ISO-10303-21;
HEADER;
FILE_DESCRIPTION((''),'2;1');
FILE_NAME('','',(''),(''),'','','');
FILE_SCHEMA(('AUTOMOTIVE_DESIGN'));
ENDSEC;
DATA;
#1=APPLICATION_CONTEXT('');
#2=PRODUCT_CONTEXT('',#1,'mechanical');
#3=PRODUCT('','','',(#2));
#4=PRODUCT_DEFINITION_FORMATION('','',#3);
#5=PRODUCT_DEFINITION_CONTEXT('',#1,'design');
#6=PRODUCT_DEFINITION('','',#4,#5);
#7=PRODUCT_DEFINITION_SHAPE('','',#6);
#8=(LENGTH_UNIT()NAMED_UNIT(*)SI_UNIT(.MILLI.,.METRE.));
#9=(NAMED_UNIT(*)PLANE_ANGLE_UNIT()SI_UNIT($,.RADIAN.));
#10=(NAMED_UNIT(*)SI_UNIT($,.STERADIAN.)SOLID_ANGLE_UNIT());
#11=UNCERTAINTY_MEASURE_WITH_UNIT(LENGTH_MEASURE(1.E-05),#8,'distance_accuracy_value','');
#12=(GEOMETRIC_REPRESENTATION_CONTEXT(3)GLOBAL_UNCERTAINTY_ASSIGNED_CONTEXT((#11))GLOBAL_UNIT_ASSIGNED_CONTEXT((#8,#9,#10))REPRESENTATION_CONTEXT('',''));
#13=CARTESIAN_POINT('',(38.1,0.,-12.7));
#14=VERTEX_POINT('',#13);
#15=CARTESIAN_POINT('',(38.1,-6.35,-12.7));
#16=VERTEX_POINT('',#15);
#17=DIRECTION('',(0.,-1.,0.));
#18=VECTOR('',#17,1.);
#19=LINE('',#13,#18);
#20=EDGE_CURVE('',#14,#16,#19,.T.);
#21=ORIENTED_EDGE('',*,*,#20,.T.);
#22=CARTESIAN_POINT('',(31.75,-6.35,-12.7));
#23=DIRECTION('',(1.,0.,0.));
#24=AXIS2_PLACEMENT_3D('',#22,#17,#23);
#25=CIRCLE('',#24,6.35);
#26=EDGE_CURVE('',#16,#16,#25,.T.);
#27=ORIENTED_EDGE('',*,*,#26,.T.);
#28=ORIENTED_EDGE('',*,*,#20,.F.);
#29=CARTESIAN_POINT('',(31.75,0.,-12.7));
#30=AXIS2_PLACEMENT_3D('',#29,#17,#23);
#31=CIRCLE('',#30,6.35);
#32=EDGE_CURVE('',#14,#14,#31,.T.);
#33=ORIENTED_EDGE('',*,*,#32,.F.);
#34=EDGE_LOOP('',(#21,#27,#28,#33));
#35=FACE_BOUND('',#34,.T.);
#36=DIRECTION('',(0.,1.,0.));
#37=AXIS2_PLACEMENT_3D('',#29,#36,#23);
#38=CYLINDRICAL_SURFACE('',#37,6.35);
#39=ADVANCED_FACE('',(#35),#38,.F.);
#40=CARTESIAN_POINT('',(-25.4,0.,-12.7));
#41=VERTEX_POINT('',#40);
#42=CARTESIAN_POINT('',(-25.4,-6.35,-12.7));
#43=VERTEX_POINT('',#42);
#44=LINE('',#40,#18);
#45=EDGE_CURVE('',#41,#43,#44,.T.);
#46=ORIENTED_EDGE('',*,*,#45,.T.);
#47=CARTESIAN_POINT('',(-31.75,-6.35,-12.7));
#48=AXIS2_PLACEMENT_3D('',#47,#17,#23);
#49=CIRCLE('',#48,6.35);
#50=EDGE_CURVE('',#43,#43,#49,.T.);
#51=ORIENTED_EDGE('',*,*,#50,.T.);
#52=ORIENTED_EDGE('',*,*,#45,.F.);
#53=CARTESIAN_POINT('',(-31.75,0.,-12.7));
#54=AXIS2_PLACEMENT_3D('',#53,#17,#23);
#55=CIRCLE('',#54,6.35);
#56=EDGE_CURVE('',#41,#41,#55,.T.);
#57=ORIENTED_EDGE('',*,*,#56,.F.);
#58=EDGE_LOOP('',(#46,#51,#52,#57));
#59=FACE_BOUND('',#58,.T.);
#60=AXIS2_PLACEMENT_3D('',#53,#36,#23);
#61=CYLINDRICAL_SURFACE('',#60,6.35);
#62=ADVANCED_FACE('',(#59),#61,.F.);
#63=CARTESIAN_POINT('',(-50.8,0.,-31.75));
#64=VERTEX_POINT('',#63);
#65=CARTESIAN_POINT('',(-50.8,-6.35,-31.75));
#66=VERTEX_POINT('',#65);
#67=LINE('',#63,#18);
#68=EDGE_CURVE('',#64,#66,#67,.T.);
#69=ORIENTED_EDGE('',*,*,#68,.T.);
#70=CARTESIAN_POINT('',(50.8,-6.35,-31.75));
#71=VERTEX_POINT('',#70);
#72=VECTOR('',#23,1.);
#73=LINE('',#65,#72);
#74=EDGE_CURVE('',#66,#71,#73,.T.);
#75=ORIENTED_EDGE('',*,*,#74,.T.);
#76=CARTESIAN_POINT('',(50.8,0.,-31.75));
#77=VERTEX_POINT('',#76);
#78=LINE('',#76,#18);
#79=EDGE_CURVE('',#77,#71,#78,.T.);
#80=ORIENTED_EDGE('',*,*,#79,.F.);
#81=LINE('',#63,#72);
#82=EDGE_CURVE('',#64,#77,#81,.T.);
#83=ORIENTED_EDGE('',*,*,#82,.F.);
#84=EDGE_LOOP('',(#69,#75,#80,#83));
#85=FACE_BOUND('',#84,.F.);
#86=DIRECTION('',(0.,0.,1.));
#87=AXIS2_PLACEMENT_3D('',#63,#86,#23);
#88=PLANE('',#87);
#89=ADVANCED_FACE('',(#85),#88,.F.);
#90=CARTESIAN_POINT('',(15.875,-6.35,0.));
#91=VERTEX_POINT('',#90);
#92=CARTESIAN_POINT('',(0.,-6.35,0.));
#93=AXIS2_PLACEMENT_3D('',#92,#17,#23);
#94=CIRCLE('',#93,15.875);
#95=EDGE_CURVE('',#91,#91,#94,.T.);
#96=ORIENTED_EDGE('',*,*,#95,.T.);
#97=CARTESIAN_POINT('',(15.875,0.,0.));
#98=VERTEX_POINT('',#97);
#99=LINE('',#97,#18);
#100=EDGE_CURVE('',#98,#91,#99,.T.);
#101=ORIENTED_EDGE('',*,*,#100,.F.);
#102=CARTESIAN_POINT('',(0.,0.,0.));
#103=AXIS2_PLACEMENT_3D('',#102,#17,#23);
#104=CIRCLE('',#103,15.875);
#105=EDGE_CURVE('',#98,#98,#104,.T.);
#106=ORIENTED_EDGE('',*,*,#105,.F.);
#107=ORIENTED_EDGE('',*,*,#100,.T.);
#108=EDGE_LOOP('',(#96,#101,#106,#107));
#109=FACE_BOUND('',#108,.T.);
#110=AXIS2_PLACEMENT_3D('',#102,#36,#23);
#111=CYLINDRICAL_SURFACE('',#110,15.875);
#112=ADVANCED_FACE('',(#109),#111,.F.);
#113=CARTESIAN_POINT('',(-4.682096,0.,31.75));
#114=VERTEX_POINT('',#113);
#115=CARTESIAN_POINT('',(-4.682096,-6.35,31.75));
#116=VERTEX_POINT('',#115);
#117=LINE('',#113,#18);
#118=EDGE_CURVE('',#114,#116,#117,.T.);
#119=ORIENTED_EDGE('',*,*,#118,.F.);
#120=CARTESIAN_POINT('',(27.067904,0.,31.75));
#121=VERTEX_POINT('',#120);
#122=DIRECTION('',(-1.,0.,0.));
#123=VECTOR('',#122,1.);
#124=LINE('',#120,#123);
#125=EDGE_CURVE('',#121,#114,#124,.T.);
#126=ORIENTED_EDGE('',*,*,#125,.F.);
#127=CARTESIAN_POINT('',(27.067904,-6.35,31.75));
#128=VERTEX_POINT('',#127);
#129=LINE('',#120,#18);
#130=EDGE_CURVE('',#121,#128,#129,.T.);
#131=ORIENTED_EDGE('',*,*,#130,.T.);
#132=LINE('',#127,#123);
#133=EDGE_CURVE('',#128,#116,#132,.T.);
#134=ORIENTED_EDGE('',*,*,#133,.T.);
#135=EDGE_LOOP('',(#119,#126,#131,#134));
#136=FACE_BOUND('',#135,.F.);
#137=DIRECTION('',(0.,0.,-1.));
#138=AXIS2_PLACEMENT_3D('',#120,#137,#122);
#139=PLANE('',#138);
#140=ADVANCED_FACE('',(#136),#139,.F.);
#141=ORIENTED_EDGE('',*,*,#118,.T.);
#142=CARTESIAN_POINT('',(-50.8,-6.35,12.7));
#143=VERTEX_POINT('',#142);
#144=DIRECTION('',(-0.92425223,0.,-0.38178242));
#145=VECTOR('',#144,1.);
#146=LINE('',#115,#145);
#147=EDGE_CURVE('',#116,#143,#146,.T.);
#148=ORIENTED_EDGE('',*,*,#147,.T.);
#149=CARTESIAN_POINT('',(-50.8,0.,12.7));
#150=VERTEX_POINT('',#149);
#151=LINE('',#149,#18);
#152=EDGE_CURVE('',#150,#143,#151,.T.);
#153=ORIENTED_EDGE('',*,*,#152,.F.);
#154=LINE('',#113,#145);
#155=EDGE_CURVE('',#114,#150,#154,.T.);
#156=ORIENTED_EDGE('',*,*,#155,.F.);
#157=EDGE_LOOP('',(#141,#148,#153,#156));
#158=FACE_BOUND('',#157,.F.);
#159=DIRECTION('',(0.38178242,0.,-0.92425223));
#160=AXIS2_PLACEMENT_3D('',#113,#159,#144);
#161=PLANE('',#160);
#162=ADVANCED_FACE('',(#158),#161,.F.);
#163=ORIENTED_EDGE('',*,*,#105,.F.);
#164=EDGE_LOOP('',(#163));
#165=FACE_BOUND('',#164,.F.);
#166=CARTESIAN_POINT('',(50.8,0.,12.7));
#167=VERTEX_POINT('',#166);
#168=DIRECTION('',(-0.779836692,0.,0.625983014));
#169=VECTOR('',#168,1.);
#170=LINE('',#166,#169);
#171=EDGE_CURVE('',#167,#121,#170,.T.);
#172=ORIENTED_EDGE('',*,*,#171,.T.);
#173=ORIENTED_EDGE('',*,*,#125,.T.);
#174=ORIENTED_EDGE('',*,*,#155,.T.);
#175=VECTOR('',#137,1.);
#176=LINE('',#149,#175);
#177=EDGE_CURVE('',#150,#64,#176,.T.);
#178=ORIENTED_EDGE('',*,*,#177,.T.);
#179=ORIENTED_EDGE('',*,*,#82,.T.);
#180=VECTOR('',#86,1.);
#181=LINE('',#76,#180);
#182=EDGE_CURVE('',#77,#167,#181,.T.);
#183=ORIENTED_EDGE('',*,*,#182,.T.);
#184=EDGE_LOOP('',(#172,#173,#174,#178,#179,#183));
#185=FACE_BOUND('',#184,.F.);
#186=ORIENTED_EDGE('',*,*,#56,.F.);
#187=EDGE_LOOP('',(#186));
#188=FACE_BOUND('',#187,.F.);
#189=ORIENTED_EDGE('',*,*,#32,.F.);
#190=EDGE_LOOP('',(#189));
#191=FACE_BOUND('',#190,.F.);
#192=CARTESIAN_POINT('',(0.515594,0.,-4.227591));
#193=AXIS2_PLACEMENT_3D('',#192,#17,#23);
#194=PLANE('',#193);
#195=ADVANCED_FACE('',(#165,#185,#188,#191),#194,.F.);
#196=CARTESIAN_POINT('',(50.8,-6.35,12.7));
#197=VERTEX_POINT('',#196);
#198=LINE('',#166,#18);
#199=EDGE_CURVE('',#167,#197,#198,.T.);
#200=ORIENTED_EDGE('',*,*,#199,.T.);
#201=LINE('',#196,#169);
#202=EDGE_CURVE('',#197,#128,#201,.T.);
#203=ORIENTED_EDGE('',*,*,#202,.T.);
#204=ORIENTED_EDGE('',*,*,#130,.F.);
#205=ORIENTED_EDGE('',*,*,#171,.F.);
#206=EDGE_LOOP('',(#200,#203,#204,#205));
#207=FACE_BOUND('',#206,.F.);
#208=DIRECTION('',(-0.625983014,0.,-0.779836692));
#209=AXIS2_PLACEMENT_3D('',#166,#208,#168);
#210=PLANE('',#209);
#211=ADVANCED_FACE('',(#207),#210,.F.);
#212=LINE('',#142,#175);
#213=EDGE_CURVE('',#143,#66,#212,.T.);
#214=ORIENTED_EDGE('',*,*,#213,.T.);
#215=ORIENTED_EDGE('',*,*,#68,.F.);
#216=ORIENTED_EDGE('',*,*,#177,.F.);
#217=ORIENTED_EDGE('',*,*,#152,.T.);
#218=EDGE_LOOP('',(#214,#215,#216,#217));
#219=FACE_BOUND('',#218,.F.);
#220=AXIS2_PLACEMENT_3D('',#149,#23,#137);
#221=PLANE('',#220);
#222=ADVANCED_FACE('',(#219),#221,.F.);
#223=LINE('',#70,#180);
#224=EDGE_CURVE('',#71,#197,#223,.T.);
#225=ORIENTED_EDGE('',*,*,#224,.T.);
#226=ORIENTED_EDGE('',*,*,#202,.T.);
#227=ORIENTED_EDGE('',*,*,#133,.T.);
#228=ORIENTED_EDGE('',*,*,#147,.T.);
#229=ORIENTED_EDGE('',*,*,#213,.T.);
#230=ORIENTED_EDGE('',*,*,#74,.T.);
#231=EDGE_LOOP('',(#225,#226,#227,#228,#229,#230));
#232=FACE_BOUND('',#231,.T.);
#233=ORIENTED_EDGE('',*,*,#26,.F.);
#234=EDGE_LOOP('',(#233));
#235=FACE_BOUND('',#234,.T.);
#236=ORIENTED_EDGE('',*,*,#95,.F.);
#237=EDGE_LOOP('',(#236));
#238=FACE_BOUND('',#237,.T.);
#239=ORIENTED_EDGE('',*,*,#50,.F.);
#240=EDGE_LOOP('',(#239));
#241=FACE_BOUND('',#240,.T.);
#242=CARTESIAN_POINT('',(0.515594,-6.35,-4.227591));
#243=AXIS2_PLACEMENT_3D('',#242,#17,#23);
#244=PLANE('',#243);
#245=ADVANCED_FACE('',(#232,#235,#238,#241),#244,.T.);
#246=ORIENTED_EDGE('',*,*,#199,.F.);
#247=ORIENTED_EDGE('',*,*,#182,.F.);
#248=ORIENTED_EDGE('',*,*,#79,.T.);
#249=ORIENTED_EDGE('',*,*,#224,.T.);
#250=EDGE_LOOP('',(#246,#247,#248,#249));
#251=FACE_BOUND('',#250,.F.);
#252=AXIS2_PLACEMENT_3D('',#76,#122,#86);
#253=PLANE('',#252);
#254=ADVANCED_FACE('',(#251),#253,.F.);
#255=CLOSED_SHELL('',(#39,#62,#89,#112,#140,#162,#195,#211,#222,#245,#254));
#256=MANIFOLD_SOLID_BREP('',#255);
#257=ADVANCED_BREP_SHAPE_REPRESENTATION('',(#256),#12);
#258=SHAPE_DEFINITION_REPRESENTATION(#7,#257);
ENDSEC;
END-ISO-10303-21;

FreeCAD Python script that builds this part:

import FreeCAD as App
import Part
import Sketcher

V = App.Vector
Q = App.Units.Quantity

doc = App.newDocument("Part")
body = doc.addObject("PartDesign::Body", "Body")

# Sketch on XZ plane
sketch1 = doc.addObject("Sketcher::SketchObject", "Sketch")
body.addObject(sketch1)
sketch1.AttachmentSupport = (doc.XZ_Plane, [""])
sketch1.MapMode = "FlatFace"
sketch1.addGeometry([
    Part.LineSegment(V(27, 32, 0), V(-5, 32, 0)),  # 0
    Part.LineSegment(V(-5, 32, 0), V(-51, 13, 0)),  # 1
    Part.LineSegment(V(-51, 13, 0), V(-51, -32, 0)),  # 2
    Part.LineSegment(V(-51, -32, 0), V(51, -32, 0)),  # 3
    Part.LineSegment(V(51, -32, 0), V(51, 13, 0)),  # 4
    Part.LineSegment(V(51, 13, 0), V(27, 32, 0)),  # 5
    Part.Circle(V(-32, -13, 0), V(0, 0, 1), 6),  # 6
    Part.Circle(V(32, -13, 0), V(0, 0, 1), 6),  # 7
    Part.Circle(V(0, 0, 0), V(0, 0, 1), 16),  # 8
], False)
sketch1.addConstraint([
    Sketcher.Constraint("Coincident", 0, 2, 1, 1),
    Sketcher.Constraint("Coincident", 1, 2, 2, 1),
    Sketcher.Constraint("Coincident", 2, 2, 3, 1),
    Sketcher.Constraint("Coincident", 3, 2, 4, 1),
    Sketcher.Constraint("Coincident", 4, 2, 5, 1),
    Sketcher.Constraint("Coincident", 5, 2, 0, 1),
    Sketcher.Constraint("Horizontal", 0),
    Sketcher.Constraint("Vertical", 2),
    Sketcher.Constraint("Horizontal", 3),
    Sketcher.Constraint("Vertical", 4),
    Sketcher.Constraint("Coincident", 8, 3, -1, 1),
    Sketcher.Constraint("Equal", 6, 7),
    Sketcher.Constraint("Symmetric", 6, 3, 7, 3, -2),
    Sketcher.Constraint("Symmetric", 1, 2, 4, 2, -2),
    Sketcher.Constraint("Diameter", 6, Q("0.5 in")),
    Sketcher.Constraint("Diameter", 8, Q("1.25 in")),
    Sketcher.Constraint("DistanceX", 3, 1, 3, 2, Q("4 in")),
    Sketcher.Constraint("DistanceY", 6, 3, 1, 2, Q("1 in")),
    Sketcher.Constraint("DistanceX", 0, 2, 0, 1, Q("1.25 in")),
    Sketcher.Constraint("DistanceY", 2, 2, 2, 1, Q("1.75 in")),
    Sketcher.Constraint("DistanceY", 6, 3, -1, 1, Q("0.5 in")),
    Sketcher.Constraint("DistanceX", 6, 3, 7, 3, Q("2.5 in")),
    Sketcher.Constraint("DistanceY", 2, 2, 0, 2, Q("2.5 in")),
    Sketcher.Constraint("Distance", 1, Q("49.897531 mm")),
])
pad1 = doc.addObject("PartDesign::Pad", "Pad")
body.addObject(pad1)
pad1.Profile = sketch1
pad1.Length = Q("0.25 in")

doc.recompute()
